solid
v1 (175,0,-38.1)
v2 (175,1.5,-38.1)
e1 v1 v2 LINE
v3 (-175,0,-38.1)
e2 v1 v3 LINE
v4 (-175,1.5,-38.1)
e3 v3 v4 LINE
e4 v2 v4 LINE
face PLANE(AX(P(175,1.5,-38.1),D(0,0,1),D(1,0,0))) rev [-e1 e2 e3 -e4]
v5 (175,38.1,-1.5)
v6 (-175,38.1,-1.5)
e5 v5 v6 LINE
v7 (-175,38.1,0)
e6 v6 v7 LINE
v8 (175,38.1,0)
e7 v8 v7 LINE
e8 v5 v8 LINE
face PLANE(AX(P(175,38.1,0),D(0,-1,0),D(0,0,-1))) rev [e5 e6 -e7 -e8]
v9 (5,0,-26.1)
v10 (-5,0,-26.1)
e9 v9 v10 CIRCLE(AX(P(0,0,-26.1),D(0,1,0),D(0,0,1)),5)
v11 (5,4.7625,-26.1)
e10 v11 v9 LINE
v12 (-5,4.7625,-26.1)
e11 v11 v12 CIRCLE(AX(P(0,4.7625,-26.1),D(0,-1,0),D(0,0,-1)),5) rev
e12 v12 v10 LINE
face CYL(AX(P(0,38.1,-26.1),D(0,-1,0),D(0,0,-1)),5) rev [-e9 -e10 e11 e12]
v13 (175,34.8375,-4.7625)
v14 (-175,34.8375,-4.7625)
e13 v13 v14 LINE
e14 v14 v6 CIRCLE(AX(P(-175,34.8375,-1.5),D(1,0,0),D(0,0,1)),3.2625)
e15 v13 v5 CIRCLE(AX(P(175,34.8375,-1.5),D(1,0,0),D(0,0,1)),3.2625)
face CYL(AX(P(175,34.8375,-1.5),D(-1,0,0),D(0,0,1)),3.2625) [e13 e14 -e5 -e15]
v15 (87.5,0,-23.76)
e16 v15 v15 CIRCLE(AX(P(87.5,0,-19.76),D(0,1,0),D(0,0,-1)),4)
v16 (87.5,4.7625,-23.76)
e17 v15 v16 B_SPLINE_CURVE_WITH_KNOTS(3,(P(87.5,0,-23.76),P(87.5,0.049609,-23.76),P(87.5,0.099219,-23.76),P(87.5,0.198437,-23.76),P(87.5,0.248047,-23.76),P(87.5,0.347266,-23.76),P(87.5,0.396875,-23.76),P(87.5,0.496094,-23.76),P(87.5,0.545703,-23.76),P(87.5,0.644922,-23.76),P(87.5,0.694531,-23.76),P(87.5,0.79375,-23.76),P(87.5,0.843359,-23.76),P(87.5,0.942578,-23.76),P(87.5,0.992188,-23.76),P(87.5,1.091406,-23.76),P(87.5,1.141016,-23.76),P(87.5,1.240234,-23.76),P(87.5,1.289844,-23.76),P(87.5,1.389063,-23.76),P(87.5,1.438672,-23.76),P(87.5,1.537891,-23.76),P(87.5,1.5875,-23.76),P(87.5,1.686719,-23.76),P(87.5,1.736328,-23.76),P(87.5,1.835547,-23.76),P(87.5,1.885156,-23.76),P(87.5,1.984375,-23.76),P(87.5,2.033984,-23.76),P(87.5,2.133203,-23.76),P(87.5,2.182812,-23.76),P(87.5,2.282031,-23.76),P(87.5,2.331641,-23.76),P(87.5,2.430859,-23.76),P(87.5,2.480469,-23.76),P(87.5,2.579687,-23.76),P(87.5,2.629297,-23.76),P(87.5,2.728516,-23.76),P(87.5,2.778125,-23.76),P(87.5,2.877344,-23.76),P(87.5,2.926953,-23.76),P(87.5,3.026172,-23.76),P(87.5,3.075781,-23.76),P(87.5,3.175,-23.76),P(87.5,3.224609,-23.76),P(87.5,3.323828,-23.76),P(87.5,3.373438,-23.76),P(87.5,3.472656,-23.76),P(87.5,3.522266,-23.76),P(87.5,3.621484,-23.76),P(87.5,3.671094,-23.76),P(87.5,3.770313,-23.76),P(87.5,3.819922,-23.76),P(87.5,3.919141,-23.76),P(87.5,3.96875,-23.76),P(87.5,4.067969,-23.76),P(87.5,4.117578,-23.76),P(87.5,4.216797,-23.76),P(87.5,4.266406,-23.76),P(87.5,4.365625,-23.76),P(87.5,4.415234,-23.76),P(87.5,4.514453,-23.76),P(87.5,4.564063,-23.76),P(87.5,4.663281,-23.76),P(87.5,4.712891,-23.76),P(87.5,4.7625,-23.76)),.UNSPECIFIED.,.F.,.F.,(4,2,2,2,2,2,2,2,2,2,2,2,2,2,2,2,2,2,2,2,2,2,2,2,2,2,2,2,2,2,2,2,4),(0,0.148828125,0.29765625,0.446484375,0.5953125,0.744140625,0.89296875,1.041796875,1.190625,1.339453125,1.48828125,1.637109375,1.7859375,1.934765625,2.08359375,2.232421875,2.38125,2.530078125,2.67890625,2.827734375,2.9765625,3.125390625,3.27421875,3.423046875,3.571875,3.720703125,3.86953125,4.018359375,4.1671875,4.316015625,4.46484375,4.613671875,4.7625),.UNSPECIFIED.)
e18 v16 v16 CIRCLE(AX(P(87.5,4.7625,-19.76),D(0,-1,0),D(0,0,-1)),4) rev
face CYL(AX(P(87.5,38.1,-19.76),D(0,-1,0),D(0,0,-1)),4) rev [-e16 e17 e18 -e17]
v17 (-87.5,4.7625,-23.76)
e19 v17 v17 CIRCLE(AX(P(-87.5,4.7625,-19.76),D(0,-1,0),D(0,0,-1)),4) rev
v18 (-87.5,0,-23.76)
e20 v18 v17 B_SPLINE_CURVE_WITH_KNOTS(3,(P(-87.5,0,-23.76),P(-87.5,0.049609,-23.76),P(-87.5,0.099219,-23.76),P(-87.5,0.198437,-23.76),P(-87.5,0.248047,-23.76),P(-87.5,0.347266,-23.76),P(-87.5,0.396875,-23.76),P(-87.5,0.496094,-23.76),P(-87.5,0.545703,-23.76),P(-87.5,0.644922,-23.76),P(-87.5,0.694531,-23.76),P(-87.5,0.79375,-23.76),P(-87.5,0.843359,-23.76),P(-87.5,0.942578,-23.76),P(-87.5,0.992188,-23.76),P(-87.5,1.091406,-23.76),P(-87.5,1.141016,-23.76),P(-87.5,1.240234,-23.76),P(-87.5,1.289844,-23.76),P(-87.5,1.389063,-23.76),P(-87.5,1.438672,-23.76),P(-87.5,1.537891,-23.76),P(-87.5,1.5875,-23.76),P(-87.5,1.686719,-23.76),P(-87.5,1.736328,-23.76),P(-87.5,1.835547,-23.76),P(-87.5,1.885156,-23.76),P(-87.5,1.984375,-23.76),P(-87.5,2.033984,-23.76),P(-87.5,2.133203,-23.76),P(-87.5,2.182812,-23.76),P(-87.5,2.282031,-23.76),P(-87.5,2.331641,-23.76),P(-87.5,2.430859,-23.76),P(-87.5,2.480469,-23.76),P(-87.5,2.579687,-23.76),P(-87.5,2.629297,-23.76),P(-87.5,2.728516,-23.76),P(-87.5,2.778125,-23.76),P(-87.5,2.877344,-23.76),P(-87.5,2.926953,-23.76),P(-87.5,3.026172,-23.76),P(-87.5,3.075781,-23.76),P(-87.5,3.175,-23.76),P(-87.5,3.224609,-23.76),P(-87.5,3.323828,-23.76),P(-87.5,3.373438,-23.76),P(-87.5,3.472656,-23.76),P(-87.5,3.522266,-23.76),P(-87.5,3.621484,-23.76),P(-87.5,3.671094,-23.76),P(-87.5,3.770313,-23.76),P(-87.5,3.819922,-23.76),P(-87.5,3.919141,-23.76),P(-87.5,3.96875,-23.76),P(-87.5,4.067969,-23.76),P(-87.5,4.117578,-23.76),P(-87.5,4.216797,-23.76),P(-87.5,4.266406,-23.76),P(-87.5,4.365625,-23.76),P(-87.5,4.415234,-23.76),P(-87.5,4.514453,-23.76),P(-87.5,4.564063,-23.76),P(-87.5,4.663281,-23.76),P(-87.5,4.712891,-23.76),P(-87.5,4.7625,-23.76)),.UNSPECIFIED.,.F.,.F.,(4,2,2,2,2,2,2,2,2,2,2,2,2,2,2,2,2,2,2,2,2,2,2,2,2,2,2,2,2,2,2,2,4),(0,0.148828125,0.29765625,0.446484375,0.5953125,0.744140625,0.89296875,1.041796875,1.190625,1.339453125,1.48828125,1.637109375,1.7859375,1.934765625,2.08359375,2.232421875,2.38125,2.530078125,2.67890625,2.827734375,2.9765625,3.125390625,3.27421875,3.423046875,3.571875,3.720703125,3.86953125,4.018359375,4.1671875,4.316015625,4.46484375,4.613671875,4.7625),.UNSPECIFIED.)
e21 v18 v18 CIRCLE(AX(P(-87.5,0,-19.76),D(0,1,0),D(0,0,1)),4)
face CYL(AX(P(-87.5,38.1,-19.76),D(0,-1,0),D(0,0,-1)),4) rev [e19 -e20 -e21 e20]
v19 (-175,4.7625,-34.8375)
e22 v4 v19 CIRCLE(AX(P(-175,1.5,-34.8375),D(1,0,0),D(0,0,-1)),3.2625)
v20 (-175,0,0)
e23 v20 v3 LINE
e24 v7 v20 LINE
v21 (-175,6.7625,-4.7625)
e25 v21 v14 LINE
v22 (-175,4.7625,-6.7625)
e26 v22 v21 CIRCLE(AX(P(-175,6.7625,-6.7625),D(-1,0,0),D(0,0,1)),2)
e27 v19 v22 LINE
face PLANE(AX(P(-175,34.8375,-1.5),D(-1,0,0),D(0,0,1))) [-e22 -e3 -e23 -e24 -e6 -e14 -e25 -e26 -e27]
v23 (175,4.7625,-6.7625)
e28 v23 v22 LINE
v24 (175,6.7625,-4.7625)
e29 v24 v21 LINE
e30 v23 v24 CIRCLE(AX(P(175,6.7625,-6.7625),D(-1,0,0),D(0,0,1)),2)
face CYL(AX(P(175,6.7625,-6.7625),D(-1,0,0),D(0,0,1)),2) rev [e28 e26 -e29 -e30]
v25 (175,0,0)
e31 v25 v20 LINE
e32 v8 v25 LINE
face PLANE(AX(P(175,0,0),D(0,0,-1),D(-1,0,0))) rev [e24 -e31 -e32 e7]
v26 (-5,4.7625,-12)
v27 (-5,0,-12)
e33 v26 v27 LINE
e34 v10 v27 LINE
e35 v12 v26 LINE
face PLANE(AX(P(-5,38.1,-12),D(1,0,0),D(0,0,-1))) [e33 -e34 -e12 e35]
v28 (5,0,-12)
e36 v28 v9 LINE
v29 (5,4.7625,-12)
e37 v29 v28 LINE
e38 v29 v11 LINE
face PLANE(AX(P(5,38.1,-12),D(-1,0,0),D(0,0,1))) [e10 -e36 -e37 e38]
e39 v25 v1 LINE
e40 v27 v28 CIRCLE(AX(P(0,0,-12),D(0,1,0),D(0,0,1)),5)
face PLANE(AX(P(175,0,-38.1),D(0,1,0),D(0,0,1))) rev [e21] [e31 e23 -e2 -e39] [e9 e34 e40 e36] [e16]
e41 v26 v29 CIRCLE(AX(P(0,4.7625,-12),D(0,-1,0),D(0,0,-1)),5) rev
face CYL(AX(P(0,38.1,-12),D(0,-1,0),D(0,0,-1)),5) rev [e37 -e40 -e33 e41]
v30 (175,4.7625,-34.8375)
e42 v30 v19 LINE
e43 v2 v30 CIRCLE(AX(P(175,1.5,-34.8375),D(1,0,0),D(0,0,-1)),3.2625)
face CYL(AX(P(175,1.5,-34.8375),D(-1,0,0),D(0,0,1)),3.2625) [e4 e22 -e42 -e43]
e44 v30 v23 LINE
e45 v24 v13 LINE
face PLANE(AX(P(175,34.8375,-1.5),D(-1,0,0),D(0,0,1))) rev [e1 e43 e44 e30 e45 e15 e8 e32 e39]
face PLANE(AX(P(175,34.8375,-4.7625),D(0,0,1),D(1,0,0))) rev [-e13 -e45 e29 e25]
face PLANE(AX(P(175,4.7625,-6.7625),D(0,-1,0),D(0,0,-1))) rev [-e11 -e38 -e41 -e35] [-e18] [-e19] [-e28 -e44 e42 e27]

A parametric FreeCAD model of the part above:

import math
import FreeCAD as App
import Part
import Sketcher
from FreeCAD import Vector
Q = App.Units.Quantity

doc = App.newDocument("Part")
body = doc.addObject("PartDesign::Body", "Body")

# Sketch on YZ plane
sketch1 = body.newObject("Sketcher::SketchObject", "Sketch")
sketch1.AttachmentSupport = (doc.getObject("YZ_Plane"), [""])
sketch1.MapMode = "FlatFace"
sketch1.AttachmentOffset = App.Placement(Vector(0, 0, -175), App.Rotation())
sketch1.addGeometry(Part.LineSegment(Vector(38.1, 0, 0), Vector(0, 0, 0)), False)
sketch1.addGeometry(Part.LineSegment(Vector(0, 0, 0), Vector(0, -38.1, 0)), False)
sketch1.addGeometry(Part.LineSegment(Vector(0, -38.1, 0), Vector(1.5, -38.1, 0)), False)
sketch1.addGeometry(Part.ArcOfCircle(Part.Circle(Vector(1.5, -34.8, 0), Vector(0, 0, 1), 3.3), math.radians(-90), math.radians(0)), False)
sketch1.addGeometry(Part.LineSegment(Vector(4.8, -34.8, 0), Vector(4.8, -6.8, 0)), False)
sketch1.addGeometry(Part.ArcOfCircle(Part.Circle(Vector(6.8, -6.8, 0), Vector(0, 0, 1), 2), math.radians(90), math.radians(180)), False)
sketch1.addGeometry(Part.LineSegment(Vector(6.8, -4.8, 0), Vector(34.8, -4.8, 0)), False)
sketch1.addGeometry(Part.ArcOfCircle(Part.Circle(Vector(34.8, -1.5, 0), Vector(0, 0, 1), 3.3), math.radians(-90), math.radians(0)), False)
sketch1.addGeometry(Part.LineSegment(Vector(38.1, -1.5, 0), Vector(38.1, 0, 0)), False)
sketch1.addConstraint(Sketcher.Constraint("Coincident", 0, 2, 1, 1))
sketch1.addConstraint(Sketcher.Constraint("Coincident", 1, 2, 2, 1))
sketch1.addConstraint(Sketcher.Constraint("Tangent", 2, 2, 3, 1))
sketch1.addConstraint(Sketcher.Constraint("Tangent", 3, 2, 4, 1))
sketch1.addConstraint(Sketcher.Constraint("Tangent", 4, 2, 5, 2))
sketch1.addConstraint(Sketcher.Constraint("Tangent", 5, 1, 6, 1))
sketch1.addConstraint(Sketcher.Constraint("Tangent", 6, 2, 7, 1))
sketch1.addConstraint(Sketcher.Constraint("Tangent", 7, 2, 8, 1))
sketch1.addConstraint(Sketcher.Constraint("Coincident", 8, 2, 0, 1))
sketch1.addConstraint(Sketcher.Constraint("Horizontal", 0))
sketch1.addConstraint(Sketcher.Constraint("Vertical", 1))
sketch1.addConstraint(Sketcher.Constraint("Horizontal", 2))
sketch1.addConstraint(Sketcher.Constraint("Vertical", 4))
sketch1.addConstraint(Sketcher.Constraint("Horizontal", 6))
sketch1.addConstraint(Sketcher.Constraint("Vertical", 8))
sketch1.addConstraint(Sketcher.Constraint("Coincident", 0, 2, -1, 1))
sketch1.addConstraint(Sketcher.Constraint("Equal", 3, 7))
sketch1.addConstraint(Sketcher.Constraint("Equal", 0, 1))
sketch1.addConstraint(Sketcher.Constraint("Equal", 6, 4))
sketch1.addConstraint(Sketcher.Constraint("Radius", 5, Q("2 mm")))
sketch1.addConstraint(Sketcher.Constraint("DistanceX", 0, 2, 0, 1, Q("38.1 mm")))
sketch1.addConstraint(Sketcher.Constraint("DistanceX", 2, 1, 2, 2, Q("1.5 mm")))
sketch1.addConstraint(Sketcher.Constraint("Radius", 3, Q("3.2625 mm")))
pad1 = body.newObject("PartDesign::Pad", "Pad")
pad1.Profile = sketch1
pad1.Length = 350

# Sketch on XZ plane
sketch2 = body.newObject("Sketcher::SketchObject", "Sketch001")
sketch2.AttachmentSupport = (doc.getObject("XZ_Plane"), [""])
sketch2.MapMode = "FlatFace"
sketch2.addGeometry(Part.Circle(Vector(-87.5, -19.8, 0), Vector(0, 0, 1), 4), False)
sketch2.addGeometry(Part.Circle(Vector(87.5, -19.8, 0), Vector(0, 0, 1), 4), False)
sketch2.addGeometry(Part.LineSegment(Vector(-5, -26.1, 0), Vector(-5, -12, 0)), False)
sketch2.addGeometry(Part.ArcOfCircle(Part.Circle(Vector(0, -12, 0), Vector(0, 0, 1), 5), math.radians(0), math.radians(180)), False)
sketch2.addGeometry(Part.LineSegment(Vector(5, -12, 0), Vector(5, -26.1, 0)), False)
sketch2.addGeometry(Part.ArcOfCircle(Part.Circle(Vector(0, -26.1, 0), Vector(0, 0, 1), 5), math.radians(180), math.radians(360)), False)
sketch2.addConstraint(Sketcher.Constraint("Tangent", 2, 2, 3, 2))
sketch2.addConstraint(Sketcher.Constraint("Tangent", 3, 1, 4, 1))
sketch2.addConstraint(Sketcher.Constraint("Tangent", 4, 2, 5, 2))
sketch2.addConstraint(Sketcher.Constraint("Tangent", 5, 1, 2, 1))
sketch2.addConstraint(Sketcher.Constraint("Vertical", 2))
sketch2.addConstraint(Sketcher.Constraint("Vertical", 4))
sketch2.addConstraint(Sketcher.Constraint("Equal", 0, 1))
sketch2.addConstraint(Sketcher.Constraint("Symmetric", 0, 3, 1, 3, -2))
sketch2.addConstraint(Sketcher.Constraint("PointOnObject", 3, 3, -2))
sketch2.addConstraint(Sketcher.Constraint("Diameter", 0, Q("8 mm")))
sketch2.addConstraint(Sketcher.Constraint("Radius", 3, Q("5 mm")))
sketch2.addConstraint(Sketcher.Constraint("DistanceY", 2, 1, 2, 2, Q("14.1 mm")))
sketch2.addConstraint(Sketcher.Constraint("DistanceY", 3, 3, -1, 1, Q("12 mm")))
sketch2.addConstraint(Sketcher.Constraint("DistanceX", 0, 3, 1, 3, Q("175 mm")))
sketch2.addConstraint(Sketcher.Constraint("DistanceY", 0, 3, -1, 1, Q("19.76 mm")))
pocket1 = body.newObject("PartDesign::Pocket", "Pocket")
pocket1.Profile = sketch2
pocket1.Type = "ThroughAll"

doc.recompute()
